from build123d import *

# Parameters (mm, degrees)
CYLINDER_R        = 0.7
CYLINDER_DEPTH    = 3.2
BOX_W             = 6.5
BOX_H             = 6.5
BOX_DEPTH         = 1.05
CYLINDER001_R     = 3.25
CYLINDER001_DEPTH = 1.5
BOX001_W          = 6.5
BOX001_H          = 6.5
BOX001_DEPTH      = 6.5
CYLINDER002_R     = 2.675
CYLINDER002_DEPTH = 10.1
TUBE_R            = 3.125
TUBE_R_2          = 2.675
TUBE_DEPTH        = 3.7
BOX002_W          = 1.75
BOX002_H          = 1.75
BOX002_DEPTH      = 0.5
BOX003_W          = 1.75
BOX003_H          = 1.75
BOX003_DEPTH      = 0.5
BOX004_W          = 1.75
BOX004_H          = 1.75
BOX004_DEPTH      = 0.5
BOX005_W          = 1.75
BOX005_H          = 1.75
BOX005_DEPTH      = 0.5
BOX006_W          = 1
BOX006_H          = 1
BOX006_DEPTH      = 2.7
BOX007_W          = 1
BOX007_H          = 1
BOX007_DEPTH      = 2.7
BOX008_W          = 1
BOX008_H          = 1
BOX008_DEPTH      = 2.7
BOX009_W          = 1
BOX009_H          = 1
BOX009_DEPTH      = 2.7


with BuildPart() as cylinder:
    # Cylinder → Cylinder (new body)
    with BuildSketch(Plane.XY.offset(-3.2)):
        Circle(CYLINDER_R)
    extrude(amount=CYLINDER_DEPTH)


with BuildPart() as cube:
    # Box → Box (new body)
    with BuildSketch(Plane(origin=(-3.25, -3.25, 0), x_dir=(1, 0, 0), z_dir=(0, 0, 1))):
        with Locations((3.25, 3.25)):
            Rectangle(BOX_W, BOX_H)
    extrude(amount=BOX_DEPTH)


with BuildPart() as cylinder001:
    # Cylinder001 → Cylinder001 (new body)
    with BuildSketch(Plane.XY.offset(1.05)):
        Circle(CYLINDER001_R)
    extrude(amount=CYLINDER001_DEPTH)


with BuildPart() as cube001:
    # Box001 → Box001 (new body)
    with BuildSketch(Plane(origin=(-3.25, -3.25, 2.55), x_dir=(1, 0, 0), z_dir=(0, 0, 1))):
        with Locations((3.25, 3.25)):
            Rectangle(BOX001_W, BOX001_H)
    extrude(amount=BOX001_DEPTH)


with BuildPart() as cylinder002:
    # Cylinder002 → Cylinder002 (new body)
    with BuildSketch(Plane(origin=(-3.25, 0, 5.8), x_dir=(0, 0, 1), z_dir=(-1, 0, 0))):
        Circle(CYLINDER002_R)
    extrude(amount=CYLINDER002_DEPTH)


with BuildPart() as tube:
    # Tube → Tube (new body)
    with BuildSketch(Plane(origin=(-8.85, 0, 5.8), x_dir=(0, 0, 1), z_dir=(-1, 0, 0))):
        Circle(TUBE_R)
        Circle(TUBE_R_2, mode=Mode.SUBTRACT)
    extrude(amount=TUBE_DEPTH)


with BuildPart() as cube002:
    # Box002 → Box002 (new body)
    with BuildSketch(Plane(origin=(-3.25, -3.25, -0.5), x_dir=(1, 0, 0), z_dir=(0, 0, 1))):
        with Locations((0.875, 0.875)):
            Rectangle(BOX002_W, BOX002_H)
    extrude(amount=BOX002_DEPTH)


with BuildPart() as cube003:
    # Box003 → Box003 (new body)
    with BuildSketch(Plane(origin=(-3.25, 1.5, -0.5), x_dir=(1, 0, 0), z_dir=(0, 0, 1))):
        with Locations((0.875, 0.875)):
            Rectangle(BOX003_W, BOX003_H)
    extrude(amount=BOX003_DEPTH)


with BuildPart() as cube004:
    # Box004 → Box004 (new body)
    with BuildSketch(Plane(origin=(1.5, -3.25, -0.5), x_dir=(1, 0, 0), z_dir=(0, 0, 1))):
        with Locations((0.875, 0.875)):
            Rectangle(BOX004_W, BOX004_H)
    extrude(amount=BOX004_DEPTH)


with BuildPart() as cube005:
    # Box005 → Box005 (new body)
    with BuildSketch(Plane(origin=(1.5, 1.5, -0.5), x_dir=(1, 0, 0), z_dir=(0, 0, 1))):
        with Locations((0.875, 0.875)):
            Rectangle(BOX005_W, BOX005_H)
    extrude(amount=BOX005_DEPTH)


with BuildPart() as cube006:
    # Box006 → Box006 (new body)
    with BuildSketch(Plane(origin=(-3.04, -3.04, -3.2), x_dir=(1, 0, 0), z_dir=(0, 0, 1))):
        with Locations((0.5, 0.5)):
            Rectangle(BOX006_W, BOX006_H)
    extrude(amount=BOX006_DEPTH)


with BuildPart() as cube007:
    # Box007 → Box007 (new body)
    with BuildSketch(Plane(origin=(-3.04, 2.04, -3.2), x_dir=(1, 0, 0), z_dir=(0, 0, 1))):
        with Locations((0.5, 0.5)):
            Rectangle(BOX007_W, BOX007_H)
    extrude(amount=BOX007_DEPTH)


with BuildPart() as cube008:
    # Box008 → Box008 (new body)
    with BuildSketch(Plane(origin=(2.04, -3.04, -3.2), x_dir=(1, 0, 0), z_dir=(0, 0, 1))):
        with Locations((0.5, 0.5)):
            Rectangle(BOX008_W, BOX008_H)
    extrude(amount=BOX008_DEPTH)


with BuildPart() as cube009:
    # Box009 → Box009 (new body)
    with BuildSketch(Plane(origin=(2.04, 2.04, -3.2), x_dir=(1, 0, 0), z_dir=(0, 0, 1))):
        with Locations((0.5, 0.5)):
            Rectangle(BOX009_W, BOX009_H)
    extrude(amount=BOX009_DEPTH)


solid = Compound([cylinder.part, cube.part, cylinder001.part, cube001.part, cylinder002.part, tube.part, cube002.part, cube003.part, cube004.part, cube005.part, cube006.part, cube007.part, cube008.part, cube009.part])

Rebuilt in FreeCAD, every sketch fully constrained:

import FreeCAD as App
import Part
import Sketcher

V = App.Vector
Q = App.Units.Quantity


def add_polygon(sketch, points):
    """Adds a closed chain of lines whose ends are joined by coincident constraints."""
    first, n = sketch.GeometryCount, len(points)
    for a, b in zip(points, points[1:] + points[:1]):
        sketch.addGeometry(Part.LineSegment(App.Vector(*a, 0), App.Vector(*b, 0)), False)
    for i in range(n):
        sketch.addConstraint(Sketcher.Constraint("Coincident", first + i, 2, first + (i + 1) % n, 1))

doc = App.newDocument("Part")
body = doc.addObject("PartDesign::Body", "Body")

# Sketch on XY plane
sketch1 = body.newObject("Sketcher::SketchObject", "Sketch")
sketch1.AttachmentSupport = (doc.getObject("XY_Plane"), [""])
sketch1.MapMode = "FlatFace"
sketch1.AttachmentOffset = App.Placement(V(0, 0, -3.2), App.Rotation())
sketch1.addGeometry(Part.Circle(V(0, 0, 0), V(0, 0, 1), 0.7), False)
sketch1.addConstraint([
    Sketcher.Constraint("Coincident", 0, 3, -1, 1),
    Sketcher.Constraint("Diameter", 0, Q("1.4 mm")),
])
pad1 = body.newObject("PartDesign::Pad", "Pad")
pad1.Profile = sketch1
pad1.Length = 3.2
body2 = doc.addObject("PartDesign::Body", "Body001")

# Sketch on XY plane
sketch2 = body2.newObject("Sketcher::SketchObject", "Sketch001")
sketch2.AttachmentSupport = (doc.getObject("XY_Plane001"), [""])
sketch2.MapMode = "FlatFace"
add_polygon(sketch2, [(-3, 3), (-3, -3), (3, -3), (3, 3)])  # lines 0-3
sketch2.addConstraint([
    Sketcher.Constraint("Vertical", 0),
    Sketcher.Constraint("Horizontal", 1),
    Sketcher.Constraint("Vertical", 2),
    Sketcher.Constraint("Horizontal", 3),
    Sketcher.Constraint("Symmetric", 0, 2, 2, 2, -1, 1),
    Sketcher.Constraint("Equal", 3, 0),
    Sketcher.Constraint("DistanceX", 1, 1, 1, 2, Q("6.5 mm")),
])
pad2 = body2.newObject("PartDesign::Pad", "Pad001")
pad2.Profile = sketch2
pad2.Length = 1.05
body3 = doc.addObject("PartDesign::Body", "Body002")

# Sketch on XY plane
sketch3 = body3.newObject("Sketcher::SketchObject", "Sketch002")
sketch3.AttachmentSupport = (doc.getObject("XY_Plane002"), [""])
sketch3.MapMode = "FlatFace"
sketch3.AttachmentOffset = App.Placement(V(0, 0, 1.05), App.Rotation())
sketch3.addGeometry(Part.Circle(V(0, 0, 0), V(0, 0, 1), 3.2), False)
sketch3.addConstraint([
    Sketcher.Constraint("Coincident", 0, 3, -1, 1),
    Sketcher.Constraint("Diameter", 0, Q("6.5 mm")),
])
pad3 = body3.newObject("PartDesign::Pad", "Pad002")
pad3.Profile = sketch3
pad3.Length = 1.5
body4 = doc.addObject("PartDesign::Body", "Body003")

# Sketch on XY plane
sketch4 = body4.newObject("Sketcher::SketchObject", "Sketch003")
sketch4.AttachmentSupport = (doc.getObject("XY_Plane003"), [""])
sketch4.MapMode = "FlatFace"
sketch4.AttachmentOffset = App.Placement(V(0, 0, 2.55), App.Rotation())
add_polygon(sketch4, [(-3, 3), (-3, -3), (3, -3), (3, 3)])  # lines 0-3
sketch4.addConstraint([
    Sketcher.Constraint("Vertical", 0),
    Sketcher.Constraint("Horizontal", 1),
    Sketcher.Constraint("Vertical", 2),
    Sketcher.Constraint("Horizontal", 3),
    Sketcher.Constraint("Symmetric", 0, 2, 2, 2, -1, 1),
    Sketcher.Constraint("Equal", 3, 0),
    Sketcher.Constraint("DistanceX", 1, 1, 1, 2, Q("6.5 mm")),
])
pad4 = body4.newObject("PartDesign::Pad", "Pad003")
pad4.Profile = sketch4
pad4.Length = 6.5
body5 = doc.addObject("PartDesign::Body", "Body004")

# Sketch on YZ plane
sketch5 = body5.newObject("Sketcher::SketchObject", "Sketch004")
sketch5.AttachmentSupport = (doc.getObject("YZ_Plane004"), [""])
sketch5.MapMode = "FlatFace"
sketch5.AttachmentOffset = App.Placement(V(0, 0, -3.25), App.Rotation())
sketch5.addGeometry(Part.Circle(V(0, 5.8, 0), V(0, 0, 1), 2.7), False)
sketch5.addConstraint([
    Sketcher.Constraint("PointOnObject", 0, 3, -2),
    Sketcher.Constraint("Diameter", 0, Q("5.35 mm")),
    Sketcher.Constraint("DistanceY", -1, 1, 0, 3, Q("5.8 mm")),
])
pad5 = body5.newObject("PartDesign::Pad", "Pad004")
pad5.Profile = sketch5
pad5.Length = 10.1
pad5.Reversed = True
body6 = doc.addObject("PartDesign::Body", "Body005")

# Sketch on YZ plane
sketch6 = body6.newObject("Sketcher::SketchObject", "Sketch005")
sketch6.AttachmentSupport = (doc.getObject("YZ_Plane005"), [""])
sketch6.MapMode = "FlatFace"
sketch6.AttachmentOffset = App.Placement(V(0, 0, -8.85), App.Rotation())
sketch6.addGeometry([
    Part.Circle(V(0, 5.8, 0), V(0, 0, 1), 3.1),
    Part.Circle(V(0, 5.8, 0), V(0, 0, 1), 2.7),
], False)
sketch6.addConstraint([
    Sketcher.Constraint("Coincident", 1, 3, 0, 3),
    Sketcher.Constraint("PointOnObject", 0, 3, -2),
    Sketcher.Constraint("Diameter", 0, Q("6.25 mm")),
    Sketcher.Constraint("Diameter", 1, Q("5.35 mm")),
    Sketcher.Constraint("DistanceY", -1, 1, 0, 3, Q("5.8 mm")),
])
pad6 = body6.newObject("PartDesign::Pad", "Pad005")
pad6.Profile = sketch6
pad6.Length = 3.7
pad6.Reversed = True
body7 = doc.addObject("PartDesign::Body", "Body006")

# Sketch on XY plane
sketch7 = body7.newObject("Sketcher::SketchObject", "Sketch006")
sketch7.AttachmentSupport = (doc.getObject("XY_Plane006"), [""])
sketch7.MapMode = "FlatFace"
sketch7.AttachmentOffset = App.Placement(V(0, 0, -0.5), App.Rotation())
add_polygon(sketch7, [(-3.2, -1.5), (-3.2, -3.2), (-1.5, -3.2), (-1.5, -1.5)])  # lines 0-3
sketch7.addConstraint([
    Sketcher.Constraint("Vertical", 0),
    Sketcher.Constraint("Horizontal", 1),
    Sketcher.Constraint("Vertical", 2),
    Sketcher.Constraint("Horizontal", 3),
    Sketcher.Constraint("Equal", 3, 0),
    Sketcher.Constraint("DistanceX", 1, 1, 1, 2, Q("1.75 mm")),
    Sketcher.Constraint("DistanceX", 1, 2, -1, 1, Q("1.5 mm")),
    Sketcher.Constraint("DistanceY", 2, 2, -1, 1, Q("1.5 mm")),
])
pad7 = body7.newObject("PartDesign::Pad", "Pad006")
pad7.Profile = sketch7
pad7.Length = 0.5
body8 = doc.addObject("PartDesign::Body", "Body007")

# Sketch on XY plane
sketch8 = body8.newObject("Sketcher::SketchObject", "Sketch007")
sketch8.AttachmentSupport = (doc.getObject("XY_Plane007"), [""])
sketch8.MapMode = "FlatFace"
sketch8.AttachmentOffset = App.Placement(V(0, 0, -0.5), App.Rotation())
add_polygon(sketch8, [(-3.2, 3.2), (-3.2, 1.5), (-1.5, 1.5), (-1.5, 3.2)])  # lines 0-3
sketch8.addConstraint([
    Sketcher.Constraint("Vertical", 0),
    Sketcher.Constraint("Horizontal", 1),
    Sketcher.Constraint("Vertical", 2),
    Sketcher.Constraint("Horizontal", 3),
    Sketcher.Constraint("Equal", 3, 0),
    Sketcher.Constraint("DistanceX", 1, 1, 1, 2, Q("1.75 mm")),
    Sketcher.Constraint("DistanceY", -1, 1, 0, 2, Q("1.5 mm")),
    Sketcher.Constraint("DistanceX", 1, 2, -1, 1, Q("1.5 mm")),
])
pad8 = body8.newObject("PartDesign::Pad", "Pad007")
pad8.Profile = sketch8
pad8.Length = 0.5
body9 = doc.addObject("PartDesign::Body", "Body008")

# Sketch on XY plane
sketch9 = body9.newObject("Sketcher::SketchObject", "Sketch008")
sketch9.AttachmentSupport = (doc.getObject("XY_Plane008"), [""])
sketch9.MapMode = "FlatFace"
sketch9.AttachmentOffset = App.Placement(V(0, 0, -0.5), App.Rotation())
add_polygon(sketch9, [(1.5, -1.5), (1.5, -3.2), (3.2, -3.2), (3.2, -1.5)])  # lines 0-3
sketch9.addConstraint([
    Sketcher.Constraint("Vertical", 0),
    Sketcher.Constraint("Horizontal", 1),
    Sketcher.Constraint("Vertical", 2),
    Sketcher.Constraint("Horizontal", 3),
    Sketcher.Constraint("Equal", 3, 0),
    Sketcher.Constraint("DistanceX", 1, 1, 1, 2, Q("1.75 mm")),
    Sketcher.Constraint("DistanceX", -1, 1, 0, 2, Q("1.5 mm")),
    Sketcher.Constraint("DistanceY", 2, 2, -1, 1, Q("1.5 mm")),
])
pad9 = body9.newObject("PartDesign::Pad", "Pad008")
pad9.Profile = sketch9
pad9.Length = 0.5
body10 = doc.addObject("PartDesign::Body", "Body009")

# Sketch on XY plane
sketch10 = body10.newObject("Sketcher::SketchObject", "Sketch009")
sketch10.AttachmentSupport = (doc.getObject("XY_Plane009"), [""])
sketch10.MapMode = "FlatFace"
sketch10.AttachmentOffset = App.Placement(V(0, 0, -0.5), App.Rotation())
add_polygon(sketch10, [(1.5, 3.2), (1.5, 1.5), (3.2, 1.5), (3.2, 3.2)])  # lines 0-3
sketch10.addConstraint([
    Sketcher.Constraint("Vertical", 0),
    Sketcher.Constraint("Horizontal", 1),
    Sketcher.Constraint("Vertical", 2),
    Sketcher.Constraint("Horizontal", 3),
    Sketcher.Constraint("Equal", 3, 0),
    Sketcher.Constraint("DistanceX", 1, 1, 1, 2, Q("1.75 mm")),
    Sketcher.Constraint("DistanceX", -1, 1, 0, 2, Q("1.5 mm")),
    Sketcher.Constraint("DistanceY", -1, 1, 0, 2, Q("1.5 mm")),
])
pad10 = body10.newObject("PartDesign::Pad", "Pad009")
pad10.Profile = sketch10
pad10.Length = 0.5
body11 = doc.addObject("PartDesign::Body", "Body010")

# Sketch on XY plane
sketch11 = body11.newObject("Sketcher::SketchObject", "Sketch010")
sketch11.AttachmentSupport = (doc.getObject("XY_Plane010"), [""])
sketch11.MapMode = "FlatFace"
sketch11.AttachmentOffset = App.Placement(V(0, 0, -3.2), App.Rotation())
add_polygon(sketch11, [(-3, -2), (-3, -3), (-2, -3), (-2, -2)])  # lines 0-3
sketch11.addConstraint([
    Sketcher.Constraint("Vertical", 0),
    Sketcher.Constraint("Horizontal", 1),
    Sketcher.Constraint("Vertical", 2),
    Sketcher.Constraint("Horizontal", 3),
    Sketcher.Constraint("Equal", 3, 0),
    Sketcher.Constraint("DistanceX", 1, 1, 1, 2, Q("1 mm")),
    Sketcher.Constraint("DistanceX", 0, 2, -1, 1, Q("3.04 mm")),
    Sketcher.Constraint("DistanceY", 0, 2, -1, 1, Q("3.04 mm")),
])
pad11 = body11.newObject("PartDesign::Pad", "Pad010")
pad11.Profile = sketch11
pad11.Length = 2.7
body12 = doc.addObject("PartDesign::Body", "Body011")

# Sketch on XY plane
sketch12 = body12.newObject("Sketcher::SketchObject", "Sketch011")
sketch12.AttachmentSupport = (doc.getObject("XY_Plane011"), [""])
sketch12.MapMode = "FlatFace"
sketch12.AttachmentOffset = App.Placement(V(0, 0, -3.2), App.Rotation())
add_polygon(sketch12, [(-3, 3), (-3, 2), (-2, 2), (-2, 3)])  # lines 0-3
sketch12.addConstraint([
    Sketcher.Constraint("Vertical", 0),
    Sketcher.Constraint("Horizontal", 1),
    Sketcher.Constraint("Vertical", 2),
    Sketcher.Constraint("Horizontal", 3),
    Sketcher.Constraint("Equal", 3, 0),
    Sketcher.Constraint("DistanceX", 1, 1, 1, 2, Q("1 mm")),
    Sketcher.Constraint("DistanceX", 0, 2, -1, 1, Q("3.04 mm")),
    Sketcher.Constraint("DistanceY", -1, 1, 0, 2, Q("2.04 mm")),
])
pad12 = body12.newObject("PartDesign::Pad", "Pad011")
pad12.Profile = sketch12
pad12.Length = 2.7
body13 = doc.addObject("PartDesign::Body", "Body012")

# Sketch on XY plane
sketch13 = body13.newObject("Sketcher::SketchObject", "Sketch012")
sketch13.AttachmentSupport = (doc.getObject("XY_Plane012"), [""])
sketch13.MapMode = "FlatFace"
sketch13.AttachmentOffset = App.Placement(V(0, 0, -3.2), App.Rotation())
add_polygon(sketch13, [(2, -2), (2, -3), (3, -3), (3, -2)])  # lines 0-3
sketch13.addConstraint([
    Sketcher.Constraint("Vertical", 0),
    Sketcher.Constraint("Horizontal", 1),
    Sketcher.Constraint("Vertical", 2),
    Sketcher.Constraint("Horizontal", 3),
    Sketcher.Constraint("Equal", 3, 0),
    Sketcher.Constraint("DistanceX", 1, 1, 1, 2, Q("1 mm")),
    Sketcher.Constraint("DistanceX", -1, 1, 0, 2, Q("2.04 mm")),
    Sketcher.Constraint("DistanceY", 0, 2, -1, 1, Q("3.04 mm")),
])
pad13 = body13.newObject("PartDesign::Pad", "Pad012")
pad13.Profile = sketch13
pad13.Length = 2.7
body14 = doc.addObject("PartDesign::Body", "Body013")

# Sketch on XY plane
sketch14 = body14.newObject("Sketcher::SketchObject", "Sketch013")
sketch14.AttachmentSupport = (doc.getObject("XY_Plane013"), [""])
sketch14.MapMode = "FlatFace"
sketch14.AttachmentOffset = App.Placement(V(0, 0, -3.2), App.Rotation())
add_polygon(sketch14, [(2, 3), (2, 2), (3, 2), (3, 3)])  # lines 0-3
sketch14.addConstraint([
    Sketcher.Constraint("Vertical", 0),
    Sketcher.Constraint("Horizontal", 1),
    Sketcher.Constraint("Vertical", 2),
    Sketcher.Constraint("Horizontal", 3),
    Sketcher.Constraint("Equal", 3, 0),
    Sketcher.Constraint("DistanceX", 1, 1, 1, 2, Q("1 mm")),
    Sketcher.Constraint("DistanceX", -1, 1, 0, 2, Q("2.04 mm")),
    Sketcher.Constraint("DistanceY", -1, 1, 0, 2, Q("2.04 mm")),
])
pad14 = body14.newObject("PartDesign::Pad", "Pad013")
pad14.Profile = sketch14
pad14.Length = 2.7

doc.recompute()
